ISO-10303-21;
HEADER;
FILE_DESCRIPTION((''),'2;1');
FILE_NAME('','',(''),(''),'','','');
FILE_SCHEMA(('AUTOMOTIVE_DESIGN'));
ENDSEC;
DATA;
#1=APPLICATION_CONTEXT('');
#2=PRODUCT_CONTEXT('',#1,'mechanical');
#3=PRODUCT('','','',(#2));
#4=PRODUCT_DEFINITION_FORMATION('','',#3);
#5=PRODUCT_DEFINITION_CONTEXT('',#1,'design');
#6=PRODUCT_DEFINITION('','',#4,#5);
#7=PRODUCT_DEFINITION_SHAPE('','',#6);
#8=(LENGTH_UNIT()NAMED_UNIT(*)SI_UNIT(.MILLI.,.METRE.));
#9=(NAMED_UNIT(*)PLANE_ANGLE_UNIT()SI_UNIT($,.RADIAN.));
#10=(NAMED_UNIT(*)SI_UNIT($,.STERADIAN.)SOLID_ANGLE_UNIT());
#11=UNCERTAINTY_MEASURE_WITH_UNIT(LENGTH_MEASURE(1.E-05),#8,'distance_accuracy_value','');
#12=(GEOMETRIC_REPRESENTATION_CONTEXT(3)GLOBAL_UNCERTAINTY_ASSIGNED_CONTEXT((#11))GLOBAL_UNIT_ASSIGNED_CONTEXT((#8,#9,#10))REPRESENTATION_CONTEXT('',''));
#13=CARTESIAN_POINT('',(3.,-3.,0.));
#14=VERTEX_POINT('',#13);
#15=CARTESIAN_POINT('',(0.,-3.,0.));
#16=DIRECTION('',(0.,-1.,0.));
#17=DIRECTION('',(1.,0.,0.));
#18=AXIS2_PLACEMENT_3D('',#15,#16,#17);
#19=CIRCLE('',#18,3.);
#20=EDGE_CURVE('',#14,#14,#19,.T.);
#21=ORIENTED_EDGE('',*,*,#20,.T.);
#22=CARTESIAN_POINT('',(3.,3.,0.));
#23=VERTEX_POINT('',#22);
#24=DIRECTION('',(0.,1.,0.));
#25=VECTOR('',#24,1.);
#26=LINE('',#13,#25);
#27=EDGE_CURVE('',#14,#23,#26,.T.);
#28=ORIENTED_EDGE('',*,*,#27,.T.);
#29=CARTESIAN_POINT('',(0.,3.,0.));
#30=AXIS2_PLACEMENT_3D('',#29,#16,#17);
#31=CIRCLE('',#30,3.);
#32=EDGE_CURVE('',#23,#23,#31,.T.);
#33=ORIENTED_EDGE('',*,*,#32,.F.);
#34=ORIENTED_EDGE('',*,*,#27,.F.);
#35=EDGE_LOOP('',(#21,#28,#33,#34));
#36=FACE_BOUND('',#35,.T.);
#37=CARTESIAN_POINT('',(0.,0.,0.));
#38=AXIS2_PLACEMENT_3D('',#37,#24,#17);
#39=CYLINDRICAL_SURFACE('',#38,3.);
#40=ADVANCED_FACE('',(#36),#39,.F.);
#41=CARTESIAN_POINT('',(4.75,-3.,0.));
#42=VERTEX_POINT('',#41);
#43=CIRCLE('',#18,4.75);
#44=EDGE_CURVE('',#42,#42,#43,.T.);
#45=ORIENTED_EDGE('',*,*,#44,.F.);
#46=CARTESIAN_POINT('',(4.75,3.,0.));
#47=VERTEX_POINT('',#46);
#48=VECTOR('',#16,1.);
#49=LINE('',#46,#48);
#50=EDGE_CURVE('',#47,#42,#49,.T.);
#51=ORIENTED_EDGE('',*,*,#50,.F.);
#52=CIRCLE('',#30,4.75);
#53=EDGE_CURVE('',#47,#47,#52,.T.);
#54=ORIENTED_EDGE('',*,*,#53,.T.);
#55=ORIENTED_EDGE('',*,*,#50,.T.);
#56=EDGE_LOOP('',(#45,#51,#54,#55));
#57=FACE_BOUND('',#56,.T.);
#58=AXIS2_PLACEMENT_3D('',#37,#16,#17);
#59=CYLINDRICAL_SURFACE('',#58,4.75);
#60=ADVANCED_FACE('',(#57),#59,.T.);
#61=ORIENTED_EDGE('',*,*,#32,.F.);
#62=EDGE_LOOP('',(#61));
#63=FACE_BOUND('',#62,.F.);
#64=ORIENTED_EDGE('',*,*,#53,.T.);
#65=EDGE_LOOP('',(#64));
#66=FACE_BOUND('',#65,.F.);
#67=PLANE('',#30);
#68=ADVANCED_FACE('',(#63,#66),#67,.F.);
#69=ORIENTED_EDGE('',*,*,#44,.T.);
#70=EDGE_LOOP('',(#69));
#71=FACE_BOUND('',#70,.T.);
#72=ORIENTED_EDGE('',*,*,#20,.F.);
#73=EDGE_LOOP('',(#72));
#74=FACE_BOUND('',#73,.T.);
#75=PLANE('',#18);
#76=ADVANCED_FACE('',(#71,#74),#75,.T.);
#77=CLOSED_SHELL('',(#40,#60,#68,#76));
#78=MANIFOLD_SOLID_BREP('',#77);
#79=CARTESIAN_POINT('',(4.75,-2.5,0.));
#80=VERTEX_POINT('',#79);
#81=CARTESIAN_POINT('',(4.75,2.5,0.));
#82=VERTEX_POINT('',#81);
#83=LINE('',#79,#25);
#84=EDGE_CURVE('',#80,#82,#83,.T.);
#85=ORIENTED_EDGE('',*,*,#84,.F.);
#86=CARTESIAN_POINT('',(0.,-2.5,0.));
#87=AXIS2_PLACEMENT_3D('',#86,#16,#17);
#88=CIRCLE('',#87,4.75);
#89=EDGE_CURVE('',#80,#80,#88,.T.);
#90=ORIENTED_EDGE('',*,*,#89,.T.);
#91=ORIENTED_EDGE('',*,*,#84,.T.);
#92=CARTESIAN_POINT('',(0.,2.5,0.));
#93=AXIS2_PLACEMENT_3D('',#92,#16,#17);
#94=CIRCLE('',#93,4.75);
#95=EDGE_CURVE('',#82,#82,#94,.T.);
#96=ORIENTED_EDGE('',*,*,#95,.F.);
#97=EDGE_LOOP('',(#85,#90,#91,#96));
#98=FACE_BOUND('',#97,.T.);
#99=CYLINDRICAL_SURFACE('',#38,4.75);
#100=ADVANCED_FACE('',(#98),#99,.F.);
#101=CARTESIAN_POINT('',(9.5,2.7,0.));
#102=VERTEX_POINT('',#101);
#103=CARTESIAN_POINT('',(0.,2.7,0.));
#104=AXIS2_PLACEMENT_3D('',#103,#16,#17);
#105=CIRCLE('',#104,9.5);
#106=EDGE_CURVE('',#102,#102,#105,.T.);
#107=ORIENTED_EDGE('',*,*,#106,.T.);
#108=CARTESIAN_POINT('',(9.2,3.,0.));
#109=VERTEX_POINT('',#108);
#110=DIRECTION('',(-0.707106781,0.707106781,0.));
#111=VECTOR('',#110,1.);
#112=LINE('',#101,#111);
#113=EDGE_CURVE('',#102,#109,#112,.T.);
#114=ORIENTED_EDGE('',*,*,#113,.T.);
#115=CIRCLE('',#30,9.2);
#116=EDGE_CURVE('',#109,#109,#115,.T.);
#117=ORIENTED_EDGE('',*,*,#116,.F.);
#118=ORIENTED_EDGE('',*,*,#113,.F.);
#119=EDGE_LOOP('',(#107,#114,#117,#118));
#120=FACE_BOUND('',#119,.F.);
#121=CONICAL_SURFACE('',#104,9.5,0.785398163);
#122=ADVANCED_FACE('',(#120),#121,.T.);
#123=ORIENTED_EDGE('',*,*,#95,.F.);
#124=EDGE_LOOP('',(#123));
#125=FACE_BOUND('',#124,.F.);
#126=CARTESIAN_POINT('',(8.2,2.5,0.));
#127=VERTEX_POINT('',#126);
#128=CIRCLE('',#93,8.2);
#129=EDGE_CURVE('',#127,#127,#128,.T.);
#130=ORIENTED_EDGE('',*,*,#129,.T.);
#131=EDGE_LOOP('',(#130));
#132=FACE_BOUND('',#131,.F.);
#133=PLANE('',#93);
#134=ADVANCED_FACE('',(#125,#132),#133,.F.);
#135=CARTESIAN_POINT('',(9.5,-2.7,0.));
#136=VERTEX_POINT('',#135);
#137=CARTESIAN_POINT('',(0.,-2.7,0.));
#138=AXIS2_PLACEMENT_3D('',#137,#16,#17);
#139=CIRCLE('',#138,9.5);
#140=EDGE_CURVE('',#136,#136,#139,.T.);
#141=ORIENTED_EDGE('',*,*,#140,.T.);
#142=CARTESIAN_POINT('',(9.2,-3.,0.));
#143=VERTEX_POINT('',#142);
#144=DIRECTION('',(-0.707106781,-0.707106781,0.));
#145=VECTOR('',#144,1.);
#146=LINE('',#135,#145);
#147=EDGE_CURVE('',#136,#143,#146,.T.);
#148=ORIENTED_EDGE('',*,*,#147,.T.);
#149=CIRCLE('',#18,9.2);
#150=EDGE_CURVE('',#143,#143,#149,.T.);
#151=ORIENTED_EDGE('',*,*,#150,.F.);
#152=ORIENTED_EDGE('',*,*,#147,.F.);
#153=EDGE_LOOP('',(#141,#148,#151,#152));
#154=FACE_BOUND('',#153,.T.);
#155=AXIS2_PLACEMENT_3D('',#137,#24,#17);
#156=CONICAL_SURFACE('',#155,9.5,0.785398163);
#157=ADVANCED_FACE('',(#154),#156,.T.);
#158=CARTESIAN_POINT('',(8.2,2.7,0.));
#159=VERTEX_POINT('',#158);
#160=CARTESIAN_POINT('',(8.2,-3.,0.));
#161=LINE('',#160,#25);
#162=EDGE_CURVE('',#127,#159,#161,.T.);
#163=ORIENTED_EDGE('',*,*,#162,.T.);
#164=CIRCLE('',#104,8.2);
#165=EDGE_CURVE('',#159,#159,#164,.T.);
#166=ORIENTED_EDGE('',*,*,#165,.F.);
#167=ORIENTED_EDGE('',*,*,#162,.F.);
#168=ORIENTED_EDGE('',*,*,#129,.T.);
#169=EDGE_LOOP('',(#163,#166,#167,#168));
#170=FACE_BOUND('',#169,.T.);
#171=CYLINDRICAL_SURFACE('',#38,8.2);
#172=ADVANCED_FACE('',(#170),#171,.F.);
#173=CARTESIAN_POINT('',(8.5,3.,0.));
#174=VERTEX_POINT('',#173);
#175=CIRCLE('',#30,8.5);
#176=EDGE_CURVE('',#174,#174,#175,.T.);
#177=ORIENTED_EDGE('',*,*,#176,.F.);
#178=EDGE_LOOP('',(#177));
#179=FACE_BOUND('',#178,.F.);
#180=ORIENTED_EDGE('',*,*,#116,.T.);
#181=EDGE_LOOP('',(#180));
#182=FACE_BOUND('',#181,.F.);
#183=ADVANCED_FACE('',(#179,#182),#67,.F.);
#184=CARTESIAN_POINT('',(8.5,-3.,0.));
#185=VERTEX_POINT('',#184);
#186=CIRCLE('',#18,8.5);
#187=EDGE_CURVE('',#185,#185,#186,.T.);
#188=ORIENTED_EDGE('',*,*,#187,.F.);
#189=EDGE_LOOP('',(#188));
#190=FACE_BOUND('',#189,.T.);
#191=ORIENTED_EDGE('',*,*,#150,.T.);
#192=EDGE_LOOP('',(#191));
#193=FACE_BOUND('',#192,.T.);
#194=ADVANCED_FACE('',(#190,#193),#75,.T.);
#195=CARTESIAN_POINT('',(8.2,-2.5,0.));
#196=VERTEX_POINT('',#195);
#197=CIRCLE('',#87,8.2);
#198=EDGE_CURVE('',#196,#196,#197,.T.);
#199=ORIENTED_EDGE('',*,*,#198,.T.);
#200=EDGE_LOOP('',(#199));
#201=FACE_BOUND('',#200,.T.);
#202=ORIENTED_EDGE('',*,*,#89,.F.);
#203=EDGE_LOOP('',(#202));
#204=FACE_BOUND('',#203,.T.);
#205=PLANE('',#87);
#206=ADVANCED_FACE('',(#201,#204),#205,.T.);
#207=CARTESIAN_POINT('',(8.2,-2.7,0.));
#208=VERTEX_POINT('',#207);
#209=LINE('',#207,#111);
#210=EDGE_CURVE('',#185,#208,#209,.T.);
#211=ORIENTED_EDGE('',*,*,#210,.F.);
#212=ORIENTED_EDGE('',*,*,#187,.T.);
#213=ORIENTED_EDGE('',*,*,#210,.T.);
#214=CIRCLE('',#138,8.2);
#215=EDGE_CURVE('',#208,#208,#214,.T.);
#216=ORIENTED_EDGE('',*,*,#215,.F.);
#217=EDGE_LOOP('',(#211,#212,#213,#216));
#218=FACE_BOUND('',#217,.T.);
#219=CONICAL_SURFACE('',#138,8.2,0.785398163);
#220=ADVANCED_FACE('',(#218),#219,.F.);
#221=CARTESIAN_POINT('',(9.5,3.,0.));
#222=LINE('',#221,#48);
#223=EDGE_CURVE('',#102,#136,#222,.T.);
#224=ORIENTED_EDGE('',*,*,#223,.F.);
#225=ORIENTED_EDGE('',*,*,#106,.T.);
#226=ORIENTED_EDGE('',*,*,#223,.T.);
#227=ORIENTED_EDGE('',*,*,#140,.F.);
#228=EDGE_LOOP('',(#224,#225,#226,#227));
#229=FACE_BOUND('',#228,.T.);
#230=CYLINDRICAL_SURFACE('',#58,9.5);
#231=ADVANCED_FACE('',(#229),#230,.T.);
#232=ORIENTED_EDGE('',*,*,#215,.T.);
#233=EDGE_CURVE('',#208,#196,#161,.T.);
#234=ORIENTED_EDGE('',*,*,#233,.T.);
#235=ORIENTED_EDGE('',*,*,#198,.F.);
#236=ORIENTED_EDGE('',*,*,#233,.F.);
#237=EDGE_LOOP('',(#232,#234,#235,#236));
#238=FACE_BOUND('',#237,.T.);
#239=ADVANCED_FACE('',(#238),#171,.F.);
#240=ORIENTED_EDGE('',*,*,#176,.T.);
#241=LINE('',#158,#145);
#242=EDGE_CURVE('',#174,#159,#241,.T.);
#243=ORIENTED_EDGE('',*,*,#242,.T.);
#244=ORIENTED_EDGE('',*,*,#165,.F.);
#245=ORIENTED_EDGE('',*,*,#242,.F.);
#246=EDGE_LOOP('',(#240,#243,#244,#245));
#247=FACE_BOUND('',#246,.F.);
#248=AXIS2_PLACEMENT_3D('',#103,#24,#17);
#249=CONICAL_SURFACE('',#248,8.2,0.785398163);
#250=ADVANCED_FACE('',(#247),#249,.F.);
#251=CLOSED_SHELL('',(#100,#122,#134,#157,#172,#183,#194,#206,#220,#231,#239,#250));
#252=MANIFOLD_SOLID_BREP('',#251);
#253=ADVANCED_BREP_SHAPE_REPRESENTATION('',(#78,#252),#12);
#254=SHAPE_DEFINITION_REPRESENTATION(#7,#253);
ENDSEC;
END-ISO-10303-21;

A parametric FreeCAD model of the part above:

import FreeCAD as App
import Part
import Sketcher
from FreeCAD import Vector


def edges_at(feature, points):
    """Names of the edges that pass closest to the given points."""
    edges = feature.Shape.Edges
    near = lambda p: min(range(len(edges)), key=lambda i: edges[i].distToShape(Part.Vertex(*p))[0])
    return sorted({f"Edge{near(p) + 1}" for p in points})

doc = App.newDocument("Part")
params = doc.addObject("Spreadsheet::Sheet", "Params")
for row, (alias, value) in enumerate([
    ("sketch1_diameter", "19 mm"),
    ("sketch1_diameter2", "16.4 mm"),
    ("pad1_length", "6 mm"),
    ("sketch2_diameter", "16.4 mm"),
    ("sketch2_diameter2", "9.5 mm"),
    ("pad2_length", "5 mm"),
    ("chamfer_size", "0.3 mm"),
    ("sketch3_diameter", "6 mm"),
    ("sketch3_diameter2", "9.5 mm"),
    ("pad3_length", "6 mm"),
], start=1):
    params.set(f"A{row}", alias)
    params.set(f"B{row}", "=" + value)
    params.setAlias(f"B{row}", alias)

body = doc.addObject("PartDesign::Body", "Body")

# Sketch on XZ plane
sketch1 = body.newObject("Sketcher::SketchObject", "Sketch")
sketch1.AttachmentSupport = (doc.getObject("XZ_Plane"), [""])
sketch1.MapMode = "FlatFace"
sketch1.addGeometry(Part.Circle(Vector(0, 0, 0), Vector(0, 0, 1), 9.5), False)
sketch1.addGeometry(Part.Circle(Vector(0, 0, 0), Vector(0, 0, 1), 8.2), False)
sketch1.addConstraint(Sketcher.Constraint("Coincident", 0, 3, -1, 1))
sketch1.addConstraint(Sketcher.Constraint("Coincident", 1, 3, -1, 1))
sketch1.addConstraint(Sketcher.Constraint("Diameter", 0, 19.0))
sketch1.addConstraint(Sketcher.Constraint("Diameter", 1, 16.4))
sketch1.setExpression("Constraints[2]", "Params.sketch1_diameter")
sketch1.setExpression("Constraints[3]", "Params.sketch1_diameter2")
pad1 = body.newObject("PartDesign::Pad", "Pad")
pad1.Profile = sketch1
pad1.setExpression("Length", "Params.pad1_length")
pad1.Midplane = True

# Sketch on XZ plane
sketch2 = body.newObject("Sketcher::SketchObject", "Sketch001")
sketch2.AttachmentSupport = (doc.getObject("XZ_Plane"), [""])
sketch2.MapMode = "FlatFace"
sketch2.addGeometry(Part.Circle(Vector(0, 0, 0), Vector(0, 0, 1), 8.2), False)
sketch2.addGeometry(Part.Circle(Vector(0, 0, 0), Vector(0, 0, 1), 4.75), False)
sketch2.addConstraint(Sketcher.Constraint("Coincident", 0, 3, -1, 1))
sketch2.addConstraint(Sketcher.Constraint("Coincident", 1, 3, -1, 1))
sketch2.addConstraint(Sketcher.Constraint("Diameter", 0, 16.4))
sketch2.addConstraint(Sketcher.Constraint("Diameter", 1, 9.5))
sketch2.setExpression("Constraints[2]", "Params.sketch2_diameter")
sketch2.setExpression("Constraints[3]", "Params.sketch2_diameter2")
pad2 = body.newObject("PartDesign::Pad", "Pad001")
pad2.Profile = sketch2
pad2.setExpression("Length", "Params.pad2_length")
pad2.Midplane = True
doc.recompute()

chamfer = body.newObject("PartDesign::Chamfer", "Chamfer")
chamfer.Base = (pad2, edges_at(pad2, [
    (-9.5, -3, 0),
    (-8.2, -3, 0),
    (-9.5, 3, 0),
    (-8.2, 3, 0),
]))
chamfer.setExpression("Size", "Params.chamfer_size")
body2 = doc.addObject("PartDesign::Body", "Body001")

# Sketch on XZ plane
sketch3 = body2.newObject("Sketcher::SketchObject", "Sketch002")
sketch3.AttachmentSupport = (doc.getObject("XZ_Plane001"), [""])
sketch3.MapMode = "FlatFace"
sketch3.addGeometry(Part.Circle(Vector(0, 0, 0), Vector(0, 0, 1), 4.75), False)
sketch3.addGeometry(Part.Circle(Vector(0, 0, 0), Vector(0, 0, 1), 3), False)
sketch3.addConstraint(Sketcher.Constraint("Coincident", 0, 3, -1, 1))
sketch3.addConstraint(Sketcher.Constraint("Coincident", 1, 3, -1, 1))
sketch3.addConstraint(Sketcher.Constraint("Diameter", 1, 6.0))
sketch3.addConstraint(Sketcher.Constraint("Diameter", 0, 9.5))
sketch3.setExpression("Constraints[2]", "Params.sketch3_diameter")
sketch3.setExpression("Constraints[3]", "Params.sketch3_diameter2")
pad3 = body2.newObject("PartDesign::Pad", "Pad002")
pad3.Profile = sketch3
pad3.setExpression("Length", "Params.pad3_length")
pad3.Midplane = True

doc.recompute()
